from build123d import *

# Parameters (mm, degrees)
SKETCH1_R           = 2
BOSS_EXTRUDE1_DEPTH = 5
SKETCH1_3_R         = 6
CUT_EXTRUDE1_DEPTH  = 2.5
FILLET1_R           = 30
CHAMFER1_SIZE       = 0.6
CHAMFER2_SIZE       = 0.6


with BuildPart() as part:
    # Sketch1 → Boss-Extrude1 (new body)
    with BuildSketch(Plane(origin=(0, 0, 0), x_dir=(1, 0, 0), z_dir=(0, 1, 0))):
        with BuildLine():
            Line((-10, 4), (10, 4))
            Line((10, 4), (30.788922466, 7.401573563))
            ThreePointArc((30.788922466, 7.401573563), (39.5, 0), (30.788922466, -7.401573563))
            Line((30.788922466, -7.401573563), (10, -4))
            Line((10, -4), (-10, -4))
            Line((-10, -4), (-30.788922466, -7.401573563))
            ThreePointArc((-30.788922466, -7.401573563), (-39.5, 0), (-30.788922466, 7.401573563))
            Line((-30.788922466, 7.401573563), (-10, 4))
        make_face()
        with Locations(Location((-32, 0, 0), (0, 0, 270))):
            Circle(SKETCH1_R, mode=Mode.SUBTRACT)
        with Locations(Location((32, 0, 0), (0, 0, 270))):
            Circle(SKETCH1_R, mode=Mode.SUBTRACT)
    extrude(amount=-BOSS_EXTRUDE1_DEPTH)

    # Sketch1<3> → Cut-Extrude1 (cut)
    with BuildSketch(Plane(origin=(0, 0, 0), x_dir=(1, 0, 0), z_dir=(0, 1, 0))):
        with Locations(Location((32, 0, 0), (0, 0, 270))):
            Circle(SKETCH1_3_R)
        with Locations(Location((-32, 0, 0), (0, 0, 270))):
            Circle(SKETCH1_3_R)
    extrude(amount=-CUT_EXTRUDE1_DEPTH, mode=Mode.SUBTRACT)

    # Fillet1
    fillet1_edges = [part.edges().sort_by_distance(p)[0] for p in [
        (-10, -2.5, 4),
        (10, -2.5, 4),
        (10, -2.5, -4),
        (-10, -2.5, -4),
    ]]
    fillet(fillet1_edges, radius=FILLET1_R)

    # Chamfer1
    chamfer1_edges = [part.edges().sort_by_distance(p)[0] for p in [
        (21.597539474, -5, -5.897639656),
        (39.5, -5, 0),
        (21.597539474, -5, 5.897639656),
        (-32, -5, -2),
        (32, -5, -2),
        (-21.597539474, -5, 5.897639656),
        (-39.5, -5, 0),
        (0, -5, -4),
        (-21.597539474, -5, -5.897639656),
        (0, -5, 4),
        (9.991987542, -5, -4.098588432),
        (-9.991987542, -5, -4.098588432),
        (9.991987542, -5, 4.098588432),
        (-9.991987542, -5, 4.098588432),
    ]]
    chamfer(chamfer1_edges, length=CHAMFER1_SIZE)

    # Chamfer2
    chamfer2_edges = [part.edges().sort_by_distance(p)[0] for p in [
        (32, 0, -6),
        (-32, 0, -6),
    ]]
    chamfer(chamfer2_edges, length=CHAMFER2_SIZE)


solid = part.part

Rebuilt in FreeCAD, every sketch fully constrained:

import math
import FreeCAD as App
import Part
import Sketcher
from FreeCAD import Vector
Q = App.Units.Quantity


def edges_at(feature, points):
    """Names of the edges that pass closest to the given points."""
    edges = feature.Shape.Edges
    near = lambda p: min(range(len(edges)), key=lambda i: edges[i].distToShape(Part.Vertex(*p))[0])
    return sorted({f"Edge{near(p) + 1}" for p in points})

doc = App.newDocument("Part")
body = doc.addObject("PartDesign::Body", "Body")

# Sketch on XZ plane
sketch1 = doc.addObject("Sketcher::SketchObject", "Sketch")
body.addObject(sketch1)
sketch1.AttachmentSupport = (doc.XZ_Plane, [""])
sketch1.MapMode = "FlatFace"
sketch1.addGeometry([
    Part.LineSegment(Vector(10, -4, 0), Vector(-10, -4, 0)),  # 0
    Part.LineSegment(Vector(-10, -4, 0), Vector(-30.8, -7.4, 0)),  # 1
    Part.ArcOfCircle(Part.Circle(Vector(-32, 0, 0), Vector(0, 0, 1), 7.5), math.radians(81), math.radians(279)),  # 2
    Part.LineSegment(Vector(-30.8, 7.4, 0), Vector(-10, 4, 0)),  # 3
    Part.LineSegment(Vector(-10, 4, 0), Vector(10, 4, 0)),  # 4
    Part.LineSegment(Vector(10, 4, 0), Vector(30.8, 7.4, 0)),  # 5
    Part.ArcOfCircle(Part.Circle(Vector(32, 0, 0), Vector(0, 0, 1), 7.5), math.radians(-99), math.radians(99)),  # 6
    Part.LineSegment(Vector(30.8, -7.4, 0), Vector(10, -4, 0)),  # 7
    Part.Circle(Vector(32, 0, 0), Vector(0, 0, 1), 2),  # 8
    Part.Circle(Vector(-32, 0, 0), Vector(0, 0, 1), 2),  # 9
], False)
sketch1.addConstraint([
    Sketcher.Constraint("Coincident", 0, 2, 1, 1),
    Sketcher.Constraint("Tangent", 1, 2, 2, 2),
    Sketcher.Constraint("Tangent", 2, 1, 3, 1),
    Sketcher.Constraint("Coincident", 3, 2, 4, 1),
    Sketcher.Constraint("Coincident", 4, 2, 5, 1),
    Sketcher.Constraint("Tangent", 5, 2, 6, 2),
    Sketcher.Constraint("Tangent", 6, 1, 7, 1),
    Sketcher.Constraint("Coincident", 7, 2, 0, 1),
    Sketcher.Constraint("Horizontal", 0),
    Sketcher.Constraint("Horizontal", 4),
    Sketcher.Constraint("Coincident", 8, 3, 6, 3),
    Sketcher.Constraint("Coincident", 9, 3, 2, 3),
    Sketcher.Constraint("Equal", 2, 6),
    Sketcher.Constraint("Equal", 8, 9),
    Sketcher.Constraint("Symmetric", 2, 3, 6, 3, -1, 1),
    Sketcher.Constraint("Symmetric", 0, 2, 4, 2, -1, 1),
    Sketcher.Constraint("Symmetric", 2, 1, 5, 2, -2),
    Sketcher.Constraint("Parallel", 3, 7),
    Sketcher.Constraint("Diameter", 8, Q("4 mm")),
    Sketcher.Constraint("Radius", 2, Q("7.5 mm")),
    Sketcher.Constraint("DistanceX", 0, 2, 0, 1, Q("20 mm")),
    Sketcher.Constraint("DistanceX", 2, 3, -1, 1, Q("32 mm")),
    Sketcher.Constraint("DistanceY", 0, 2, -1, 1, Q("4 mm")),
])
pad1 = doc.addObject("PartDesign::Pad", "Pad")
body.addObject(pad1)
pad1.Profile = sketch1
pad1.Length = 5

# Sketch on XZ plane
sketch2 = doc.addObject("Sketcher::SketchObject", "Sketch001")
body.addObject(sketch2)
sketch2.AttachmentSupport = (doc.XZ_Plane, [""])
sketch2.MapMode = "FlatFace"
sketch2.addGeometry([
    Part.Circle(Vector(32, 0, 0), Vector(0, 0, 1), 6),
    Part.Circle(Vector(-32, 0, 0), Vector(0, 0, 1), 6),
], False)
sketch2.addConstraint([
    Sketcher.Constraint("Equal", 0, 1),
    Sketcher.Constraint("Symmetric", 0, 3, 1, 3, -1, 1),
    Sketcher.Constraint("PointOnObject", 0, 3, -1),
    Sketcher.Constraint("Diameter", 0, Q("12 mm")),
    Sketcher.Constraint("DistanceX", -1, 1, 0, 3, Q("32 mm")),
])
pocket1 = doc.addObject("PartDesign::Pocket", "Pocket")
body.addObject(pocket1)
pocket1.Profile = sketch2
pocket1.Length = 2.5
pocket1.Reversed = True
doc.recompute()

fillet = doc.addObject("PartDesign::Fillet", "Fillet")
body.addObject(fillet)
fillet.Base = (pocket1, edges_at(pocket1, [
    (-10, -2.5, 4),
    (10, -2.5, 4),
    (10, -2.5, -4),
    (-10, -2.5, -4),
]))
fillet.Radius = 30
doc.recompute()

chamfer = doc.addObject("PartDesign::Chamfer", "Chamfer")
body.addObject(chamfer)
chamfer.Base = (fillet, edges_at(fillet, [
    (21.598, -5, -5.898),
    (39.5, -5, 0),
    (21.598, -5, 5.898),
    (-32, -5, -2),
    (32, -5, -2),
    (-21.598, -5, 5.898),
    (-39.5, -5, 0),
    (0, -5, -4),
    (-21.598, -5, -5.898),
    (0, -5, 4),
    (9.992, -5, -4.099),
    (-9.992, -5, -4.099),
    (9.992, -5, 4.099),
    (-9.992, -5, 4.099),
]))
chamfer.Size = 0.6
doc.recompute()

chamfer2 = doc.addObject("PartDesign::Chamfer", "Chamfer001")
body.addObject(chamfer2)
chamfer2.Base = (chamfer, edges_at(chamfer, [(32, 0, -6), (-32, 0, -6)]))
chamfer2.Size = 0.6

doc.recompute()
